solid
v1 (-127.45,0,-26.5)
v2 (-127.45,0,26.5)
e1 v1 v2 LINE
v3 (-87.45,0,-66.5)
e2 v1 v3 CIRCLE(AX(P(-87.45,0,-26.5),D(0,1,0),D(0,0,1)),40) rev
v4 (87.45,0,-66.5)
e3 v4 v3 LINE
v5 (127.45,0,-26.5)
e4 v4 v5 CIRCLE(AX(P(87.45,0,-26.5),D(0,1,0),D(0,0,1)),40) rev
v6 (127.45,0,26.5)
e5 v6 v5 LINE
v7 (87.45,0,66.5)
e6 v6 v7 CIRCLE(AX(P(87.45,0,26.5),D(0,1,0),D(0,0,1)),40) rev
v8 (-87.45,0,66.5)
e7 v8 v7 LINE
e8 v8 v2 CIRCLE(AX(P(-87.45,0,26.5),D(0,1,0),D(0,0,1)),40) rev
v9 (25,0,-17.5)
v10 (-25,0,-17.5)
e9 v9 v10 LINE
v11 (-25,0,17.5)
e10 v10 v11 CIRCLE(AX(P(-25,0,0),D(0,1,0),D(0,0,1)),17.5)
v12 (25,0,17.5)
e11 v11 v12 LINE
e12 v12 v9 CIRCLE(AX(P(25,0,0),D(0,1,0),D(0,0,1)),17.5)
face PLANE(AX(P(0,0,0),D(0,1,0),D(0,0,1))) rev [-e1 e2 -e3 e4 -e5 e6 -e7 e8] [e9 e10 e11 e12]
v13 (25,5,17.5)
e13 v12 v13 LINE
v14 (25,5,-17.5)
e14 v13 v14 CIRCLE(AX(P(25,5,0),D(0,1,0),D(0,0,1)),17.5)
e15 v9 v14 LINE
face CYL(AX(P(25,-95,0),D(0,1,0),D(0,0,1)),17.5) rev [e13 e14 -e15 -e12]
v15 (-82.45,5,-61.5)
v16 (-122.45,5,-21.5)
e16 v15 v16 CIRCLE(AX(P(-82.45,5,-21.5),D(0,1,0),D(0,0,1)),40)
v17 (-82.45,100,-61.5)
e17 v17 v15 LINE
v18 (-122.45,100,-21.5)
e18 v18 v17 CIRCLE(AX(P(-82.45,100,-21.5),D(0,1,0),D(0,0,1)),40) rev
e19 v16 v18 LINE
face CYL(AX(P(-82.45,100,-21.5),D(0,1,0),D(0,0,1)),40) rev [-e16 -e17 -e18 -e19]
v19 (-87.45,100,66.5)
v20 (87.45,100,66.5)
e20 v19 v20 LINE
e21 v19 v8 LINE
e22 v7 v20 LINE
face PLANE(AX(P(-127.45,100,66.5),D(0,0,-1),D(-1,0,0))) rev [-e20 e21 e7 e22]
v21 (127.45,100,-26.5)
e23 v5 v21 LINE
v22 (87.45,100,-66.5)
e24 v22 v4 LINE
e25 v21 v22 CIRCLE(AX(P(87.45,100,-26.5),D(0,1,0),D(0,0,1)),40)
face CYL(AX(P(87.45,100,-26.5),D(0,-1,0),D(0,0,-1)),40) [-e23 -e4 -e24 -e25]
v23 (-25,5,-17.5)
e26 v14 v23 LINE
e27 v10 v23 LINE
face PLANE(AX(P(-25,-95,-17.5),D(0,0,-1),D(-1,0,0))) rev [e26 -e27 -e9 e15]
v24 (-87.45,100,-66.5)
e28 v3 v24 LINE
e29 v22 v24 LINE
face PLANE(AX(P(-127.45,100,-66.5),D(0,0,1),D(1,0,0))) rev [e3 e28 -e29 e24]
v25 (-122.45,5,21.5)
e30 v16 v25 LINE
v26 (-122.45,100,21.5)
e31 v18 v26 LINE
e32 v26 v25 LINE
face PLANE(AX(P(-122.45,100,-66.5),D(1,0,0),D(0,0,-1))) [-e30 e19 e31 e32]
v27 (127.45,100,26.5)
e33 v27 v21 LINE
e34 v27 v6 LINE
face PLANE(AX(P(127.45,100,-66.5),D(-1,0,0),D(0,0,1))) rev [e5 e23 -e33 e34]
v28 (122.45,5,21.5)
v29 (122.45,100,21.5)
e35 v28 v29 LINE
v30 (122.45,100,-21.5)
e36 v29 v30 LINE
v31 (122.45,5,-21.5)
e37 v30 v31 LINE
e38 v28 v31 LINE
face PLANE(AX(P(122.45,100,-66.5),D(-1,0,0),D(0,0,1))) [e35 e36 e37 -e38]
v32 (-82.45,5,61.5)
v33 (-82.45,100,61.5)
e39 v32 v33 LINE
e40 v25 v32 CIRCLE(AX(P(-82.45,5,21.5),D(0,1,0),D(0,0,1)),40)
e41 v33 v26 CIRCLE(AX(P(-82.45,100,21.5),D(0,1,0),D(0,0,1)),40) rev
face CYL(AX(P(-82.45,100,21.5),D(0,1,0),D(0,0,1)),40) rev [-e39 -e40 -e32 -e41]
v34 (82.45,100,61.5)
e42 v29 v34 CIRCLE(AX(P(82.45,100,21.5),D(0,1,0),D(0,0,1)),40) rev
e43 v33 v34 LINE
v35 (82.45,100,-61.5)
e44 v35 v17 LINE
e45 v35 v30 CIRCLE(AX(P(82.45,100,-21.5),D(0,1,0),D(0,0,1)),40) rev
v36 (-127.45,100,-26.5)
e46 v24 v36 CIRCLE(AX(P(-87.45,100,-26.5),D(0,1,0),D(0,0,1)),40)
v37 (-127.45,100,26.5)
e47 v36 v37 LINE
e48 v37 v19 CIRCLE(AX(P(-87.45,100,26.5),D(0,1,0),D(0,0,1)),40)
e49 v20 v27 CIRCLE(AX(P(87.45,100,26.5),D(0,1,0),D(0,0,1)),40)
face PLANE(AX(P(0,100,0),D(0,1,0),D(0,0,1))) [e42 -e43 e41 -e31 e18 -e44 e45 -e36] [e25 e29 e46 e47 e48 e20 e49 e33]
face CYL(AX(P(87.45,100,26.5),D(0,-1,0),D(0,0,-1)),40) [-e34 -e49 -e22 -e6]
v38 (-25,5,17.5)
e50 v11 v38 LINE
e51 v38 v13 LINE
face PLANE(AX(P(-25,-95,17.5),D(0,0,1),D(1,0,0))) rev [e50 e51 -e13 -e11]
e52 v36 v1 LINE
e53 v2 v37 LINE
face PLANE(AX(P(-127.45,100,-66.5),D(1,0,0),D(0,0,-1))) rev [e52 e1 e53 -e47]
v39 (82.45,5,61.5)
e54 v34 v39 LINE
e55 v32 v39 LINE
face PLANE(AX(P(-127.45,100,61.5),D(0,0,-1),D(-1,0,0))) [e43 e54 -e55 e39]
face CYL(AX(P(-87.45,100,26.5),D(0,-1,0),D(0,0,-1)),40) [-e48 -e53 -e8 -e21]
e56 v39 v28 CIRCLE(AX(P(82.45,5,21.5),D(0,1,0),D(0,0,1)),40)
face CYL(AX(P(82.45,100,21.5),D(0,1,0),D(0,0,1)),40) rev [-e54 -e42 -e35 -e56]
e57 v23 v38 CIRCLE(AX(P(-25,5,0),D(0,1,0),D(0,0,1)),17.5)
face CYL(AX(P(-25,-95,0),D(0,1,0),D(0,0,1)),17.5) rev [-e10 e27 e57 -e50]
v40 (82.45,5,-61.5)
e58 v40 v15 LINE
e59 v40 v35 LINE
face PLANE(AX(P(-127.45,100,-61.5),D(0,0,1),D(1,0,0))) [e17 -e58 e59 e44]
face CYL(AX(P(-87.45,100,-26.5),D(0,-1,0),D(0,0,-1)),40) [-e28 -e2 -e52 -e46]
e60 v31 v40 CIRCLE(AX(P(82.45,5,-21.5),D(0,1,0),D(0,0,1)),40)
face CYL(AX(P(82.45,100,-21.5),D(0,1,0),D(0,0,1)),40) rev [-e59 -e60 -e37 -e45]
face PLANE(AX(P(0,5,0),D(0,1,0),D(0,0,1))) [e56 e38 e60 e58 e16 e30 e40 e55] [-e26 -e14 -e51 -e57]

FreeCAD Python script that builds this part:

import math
import FreeCAD as App
import Part
import Sketcher
from FreeCAD import Vector


def edges_at(feature, points):
    """Names of the edges that pass closest to the given points."""
    edges = feature.Shape.Edges
    near = lambda p: min(range(len(edges)), key=lambda i: edges[i].distToShape(Part.Vertex(*p))[0])
    return sorted({f"Edge{near(p) + 1}" for p in points})


def faces_at(feature, points):
    """Names of the faces that lie closest to the given points."""
    faces = feature.Shape.Faces
    near = lambda p: min(range(len(faces)), key=lambda i: faces[i].distToShape(Part.Vertex(*p))[0])
    return sorted({f"Face{near(p) + 1}" for p in points})

doc = App.newDocument("Part")
body = doc.addObject("PartDesign::Body", "Body")

# Sketch on XZ plane
sketch1 = body.newObject("Sketcher::SketchObject", "Sketch")
sketch1.AttachmentSupport = (doc.getObject("XZ_Plane"), [""])
sketch1.MapMode = "FlatFace"
sketch1.addGeometry(Part.LineSegment(Vector(-127, -66, 0), Vector(-127, 66, 0)), False)
sketch1.addGeometry(Part.LineSegment(Vector(-127, 66, 0), Vector(127, 66, 0)), False)
sketch1.addGeometry(Part.LineSegment(Vector(127, 66, 0), Vector(127, -66, 0)), False)
sketch1.addGeometry(Part.LineSegment(Vector(127, -66, 0), Vector(-127, -66, 0)), False)
sketch1.addConstraint(Sketcher.Constraint("Coincident", 0, 2, 1, 1))
sketch1.addConstraint(Sketcher.Constraint("Coincident", 1, 2, 2, 1))
sketch1.addConstraint(Sketcher.Constraint("Coincident", 2, 2, 3, 1))
sketch1.addConstraint(Sketcher.Constraint("Coincident", 3, 2, 0, 1))
sketch1.addConstraint(Sketcher.Constraint("Vertical", 0))
sketch1.addConstraint(Sketcher.Constraint("Horizontal", 1))
sketch1.addConstraint(Sketcher.Constraint("Vertical", 2))
sketch1.addConstraint(Sketcher.Constraint("Horizontal", 3))
sketch1.addConstraint(Sketcher.Constraint("Symmetric", 0, 2, 2, 2, -1, 1))
sketch1.addConstraint(Sketcher.Constraint("DistanceY", 0, 1, 0, 2, 133.0))
sketch1.addConstraint(Sketcher.Constraint("DistanceX", 1, 1, 1, 2, 254.9))
pad1 = body.newObject("PartDesign::Pad", "Pad")
pad1.Profile = sketch1
pad1.Length = 100
pad1.Reversed = True
doc.recompute()

thickness = body.newObject("PartDesign::Thickness", "Thickness")
thickness.Base = (pad1, faces_at(pad1, [(0, 100, 0)]))
thickness.Value = 5
thickness.Reversed = True
thickness.Join = "Intersection"
doc.recompute()

fillet = body.newObject("PartDesign::Fillet", "Fillet")
fillet.Base = (thickness, edges_at(thickness, [
    (122.45, 52.5, 61.5),
    (122.45, 52.5, -61.5),
    (-122.45, 52.5, -61.5),
    (-122.45, 52.5, 61.5),
]))
fillet.Radius = 40
doc.recompute()

fillet2 = body.newObject("PartDesign::Fillet", "Fillet001")
fillet2.Base = (fillet, edges_at(fillet, [
    (127.45, 50, 66.5),
    (-127.45, 50, 66.5),
    (-127.45, 50, -66.5),
    (127.45, 50, -66.5),
]))
fillet2.Radius = 40

# Sketch on XZ plane
sketch2 = body.newObject("Sketcher::SketchObject", "Sketch001")
sketch2.AttachmentSupport = (doc.getObject("XZ_Plane"), [""])
sketch2.MapMode = "FlatFace"
sketch2.AttachmentOffset = App.Placement(Vector(0, 0, -5), App.Rotation())
sketch2.addGeometry(Part.LineSegment(Vector(25, -18, 0), Vector(-25, -18, 0)), False)
sketch2.addGeometry(Part.ArcOfCircle(Part.Circle(Vector(-25, 0, 0), Vector(0, 0, 1), 18), math.radians(90), math.radians(270)), False)
sketch2.addGeometry(Part.LineSegment(Vector(-25, 18, 0), Vector(25, 18, 0)), False)
sketch2.addGeometry(Part.ArcOfCircle(Part.Circle(Vector(25, 0, 0), Vector(0, 0, 1), 18), math.radians(-90), math.radians(90)), False)
sketch2.addConstraint(Sketcher.Constraint("Tangent", 0, 2, 1, 2))
sketch2.addConstraint(Sketcher.Constraint("Tangent", 1, 1, 2, 1))
sketch2.addConstraint(Sketcher.Constraint("Tangent", 2, 2, 3, 2))
sketch2.addConstraint(Sketcher.Constraint("Tangent", 3, 1, 0, 1))
sketch2.addConstraint(Sketcher.Constraint("Horizontal", 0))
sketch2.addConstraint(Sketcher.Constraint("Horizontal", 2))
sketch2.addConstraint(Sketcher.Constraint("Symmetric", 1, 3, 3, 3, -1, 1))
sketch2.addConstraint(Sketcher.Constraint("Radius", 1, 17.5))
sketch2.addConstraint(Sketcher.Constraint("DistanceX", 0, 2, 0, 1, 50.0))
pocket1 = body.newObject("PartDesign::Pocket", "Pocket")
pocket1.Profile = sketch2
pocket1.Length = 100
pocket1.Reversed = True

doc.recompute()
